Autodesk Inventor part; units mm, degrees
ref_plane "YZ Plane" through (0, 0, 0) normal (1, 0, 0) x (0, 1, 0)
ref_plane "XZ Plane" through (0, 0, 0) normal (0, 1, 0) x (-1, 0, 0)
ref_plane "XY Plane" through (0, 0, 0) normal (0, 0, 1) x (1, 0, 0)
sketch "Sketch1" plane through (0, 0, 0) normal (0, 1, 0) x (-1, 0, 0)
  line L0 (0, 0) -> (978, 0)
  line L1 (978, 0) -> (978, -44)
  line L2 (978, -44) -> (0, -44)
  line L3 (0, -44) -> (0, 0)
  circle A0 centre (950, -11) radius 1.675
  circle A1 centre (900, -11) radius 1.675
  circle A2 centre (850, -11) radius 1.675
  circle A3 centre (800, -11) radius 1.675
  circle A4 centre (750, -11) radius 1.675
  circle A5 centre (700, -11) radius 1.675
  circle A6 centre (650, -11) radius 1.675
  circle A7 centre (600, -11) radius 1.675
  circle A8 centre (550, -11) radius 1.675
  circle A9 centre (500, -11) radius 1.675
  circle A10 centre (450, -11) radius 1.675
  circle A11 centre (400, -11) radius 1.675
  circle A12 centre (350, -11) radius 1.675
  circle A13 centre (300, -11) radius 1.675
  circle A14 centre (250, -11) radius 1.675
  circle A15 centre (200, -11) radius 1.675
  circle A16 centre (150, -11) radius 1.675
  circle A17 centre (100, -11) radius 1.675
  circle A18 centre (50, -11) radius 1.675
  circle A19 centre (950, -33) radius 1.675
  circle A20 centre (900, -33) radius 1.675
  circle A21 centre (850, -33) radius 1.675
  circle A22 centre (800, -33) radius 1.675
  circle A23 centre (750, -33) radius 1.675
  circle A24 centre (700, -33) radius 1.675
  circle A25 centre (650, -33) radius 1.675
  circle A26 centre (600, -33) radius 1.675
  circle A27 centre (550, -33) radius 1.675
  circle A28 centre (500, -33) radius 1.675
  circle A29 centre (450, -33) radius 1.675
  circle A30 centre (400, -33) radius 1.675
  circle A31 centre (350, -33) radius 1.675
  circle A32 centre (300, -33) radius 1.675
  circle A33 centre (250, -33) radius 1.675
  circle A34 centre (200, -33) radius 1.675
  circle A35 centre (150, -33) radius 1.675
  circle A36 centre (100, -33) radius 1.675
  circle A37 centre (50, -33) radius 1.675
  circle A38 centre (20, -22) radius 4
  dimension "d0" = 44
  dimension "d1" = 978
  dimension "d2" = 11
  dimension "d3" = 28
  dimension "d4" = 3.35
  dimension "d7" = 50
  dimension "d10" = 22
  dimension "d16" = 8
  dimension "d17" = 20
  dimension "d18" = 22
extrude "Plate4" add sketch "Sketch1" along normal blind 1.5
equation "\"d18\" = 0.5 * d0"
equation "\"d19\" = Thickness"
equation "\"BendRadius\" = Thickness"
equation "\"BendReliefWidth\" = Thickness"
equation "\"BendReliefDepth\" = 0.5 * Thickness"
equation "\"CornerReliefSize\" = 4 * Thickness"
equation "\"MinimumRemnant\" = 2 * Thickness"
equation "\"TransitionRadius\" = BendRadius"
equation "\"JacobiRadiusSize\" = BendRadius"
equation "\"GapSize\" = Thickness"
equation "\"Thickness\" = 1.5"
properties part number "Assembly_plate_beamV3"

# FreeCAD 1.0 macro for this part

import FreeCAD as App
import Part
import Sketcher

V = App.Vector
Q = App.Units.Quantity

doc = App.newDocument("Part")
params = doc.addObject("Spreadsheet::Sheet", "Params")
for row, (alias, value) in enumerate([
    ("sketch1_diameter", "8 mm"),
    ("sketch1_diameter2", "3.35 mm"),
    ("sketch1_width", "978 mm"),
    ("sketch1_height", "44 mm"),
    ("pad1_length", "1.5 mm"),
], start=1):
    params.set(f"A{row}", alias)
    params.set(f"B{row}", "=" + value)
    params.setAlias(f"B{row}", alias)

body = doc.addObject("PartDesign::Body", "Body")

sketch1 = body.newObject("Sketcher::SketchObject", "Sketch")
sketch1.AttachmentSupport = (doc.getObject("XZ_Plane"), [""])
sketch1.MapMode = "FlatFace"
sketch1.addGeometry([
    Part.LineSegment(V(-978, 0, 0), V(0, 0, 0)),
    Part.LineSegment(V(0, 0, 0), V(0, -44, 0)),
    Part.LineSegment(V(0, -44, 0), V(-978, -44, 0)),
    Part.LineSegment(V(-978, -44, 0), V(-978, 0, 0)),
    Part.Circle(V(-50, -33, 0), V(0, 0, 1), 1.7),
    Part.Circle(V(-100, -33, 0), V(0, 0, 1), 1.7),
    Part.Circle(V(-150, -33, 0), V(0, 0, 1), 1.7),
    Part.Circle(V(-200, -33, 0), V(0, 0, 1), 1.7),
    Part.Circle(V(-250, -33, 0), V(0, 0, 1), 1.7),
    Part.Circle(V(-300, -33, 0), V(0, 0, 1), 1.7),
    Part.Circle(V(-350, -33, 0), V(0, 0, 1), 1.7),
    Part.Circle(V(-400, -33, 0), V(0, 0, 1), 1.7),
    Part.Circle(V(-450, -33, 0), V(0, 0, 1), 1.7),
    Part.Circle(V(-500, -33, 0), V(0, 0, 1), 1.7),
    Part.Circle(V(-550, -33, 0), V(0, 0, 1), 1.7),
    Part.Circle(V(-600, -33, 0), V(0, 0, 1), 1.7),
    Part.Circle(V(-650, -33, 0), V(0, 0, 1), 1.7),
    Part.Circle(V(-700, -33, 0), V(0, 0, 1), 1.7),
    Part.Circle(V(-750, -33, 0), V(0, 0, 1), 1.7),
    Part.Circle(V(-800, -33, 0), V(0, 0, 1), 1.7),
    Part.Circle(V(-850, -33, 0), V(0, 0, 1), 1.7),
    Part.Circle(V(-900, -33, 0), V(0, 0, 1), 1.7),
    Part.Circle(V(-950, -33, 0), V(0, 0, 1), 1.7),
    Part.Circle(V(-20, -22, 0), V(0, 0, 1), 4),
    Part.Circle(V(-50, -11, 0), V(0, 0, 1), 1.7),
    Part.Circle(V(-100, -11, 0), V(0, 0, 1), 1.7),
    Part.Circle(V(-150, -11, 0), V(0, 0, 1), 1.7),
    Part.Circle(V(-200, -11, 0), V(0, 0, 1), 1.7),
    Part.Circle(V(-250, -11, 0), V(0, 0, 1), 1.7),
    Part.Circle(V(-300, -11, 0), V(0, 0, 1), 1.7),
    Part.Circle(V(-350, -11, 0), V(0, 0, 1), 1.7),
    Part.Circle(V(-400, -11, 0), V(0, 0, 1), 1.7),
    Part.Circle(V(-450, -11, 0), V(0, 0, 1), 1.7),
    Part.Circle(V(-500, -11, 0), V(0, 0, 1), 1.7),
    Part.Circle(V(-550, -11, 0), V(0, 0, 1), 1.7),
    Part.Circle(V(-600, -11, 0), V(0, 0, 1), 1.7),
    Part.Circle(V(-650, -11, 0), V(0, 0, 1), 1.7),
    Part.Circle(V(-700, -11, 0), V(0, 0, 1), 1.7),
    Part.Circle(V(-750, -11, 0), V(0, 0, 1), 1.7),
    Part.Circle(V(-800, -11, 0), V(0, 0, 1), 1.7),
    Part.Circle(V(-850, -11, 0), V(0, 0, 1), 1.7),
    Part.Circle(V(-900, -11, 0), V(0, 0, 1), 1.7),
    Part.Circle(V(-950, -11, 0), V(0, 0, 1), 1.7),
], False)
sketch1.addConstraint([
    Sketcher.Constraint("Coincident", 0, 2, 1, 1),
    Sketcher.Constraint("Coincident", 1, 2, 2, 1),
    Sketcher.Constraint("Coincident", 2, 2, 3, 1),
    Sketcher.Constraint("Coincident", 3, 2, 0, 1),
    Sketcher.Constraint("Horizontal", 0),
    Sketcher.Constraint("Vertical", 1),
    Sketcher.Constraint("Horizontal", 2),
    Sketcher.Constraint("Vertical", 3),
    Sketcher.Constraint("Coincident", 0, 2, -1, 1),
    Sketcher.Constraint("Equal", 4, 5),
    Sketcher.Constraint("Equal", 5, 6),
    Sketcher.Constraint("Equal", 6, 7),
    Sketcher.Constraint("Equal", 7, 8),
    Sketcher.Constraint("Equal", 8, 9),
    Sketcher.Constraint("Equal", 9, 10),
    Sketcher.Constraint("Equal", 10, 11),
    Sketcher.Constraint("Equal", 11, 12),
    Sketcher.Constraint("Equal", 12, 13),
    Sketcher.Constraint("Equal", 13, 14),
    Sketcher.Constraint("Equal", 14, 15),
    Sketcher.Constraint("Equal", 15, 16),
    Sketcher.Constraint("Equal", 16, 17),
    Sketcher.Constraint("Equal", 17, 18),
    Sketcher.Constraint("Equal", 18, 19),
    Sketcher.Constraint("Equal", 19, 20),
    Sketcher.Constraint("Equal", 20, 21),
    Sketcher.Constraint("Equal", 21, 22),
    Sketcher.Constraint("Equal", 22, 24),
    Sketcher.Constraint("Equal", 24, 25),
    Sketcher.Constraint("Equal", 25, 26),
    Sketcher.Constraint("Equal", 26, 27),
    Sketcher.Constraint("Equal", 27, 28),
    Sketcher.Constraint("Equal", 28, 29),
    Sketcher.Constraint("Equal", 29, 30),
    Sketcher.Constraint("Equal", 30, 31),
    Sketcher.Constraint("Equal", 31, 32),
    Sketcher.Constraint("Equal", 32, 33),
    Sketcher.Constraint("Equal", 33, 34),
    Sketcher.Constraint("Equal", 34, 35),
    Sketcher.Constraint("Equal", 35, 36),
    Sketcher.Constraint("Equal", 36, 37),
    Sketcher.Constraint("Equal", 37, 38),
    Sketcher.Constraint("Equal", 38, 39),
    Sketcher.Constraint("Equal", 39, 40),
    Sketcher.Constraint("Equal", 40, 41),
    Sketcher.Constraint("Equal", 41, 42),
    Sketcher.Constraint("Horizontal", 4, 3, 5, 3),
    Sketcher.Constraint("Horizontal", 5, 3, 6, 3),
    Sketcher.Constraint("Horizontal", 6, 3, 7, 3),
    Sketcher.Constraint("Horizontal", 7, 3, 8, 3),
    Sketcher.Constraint("Horizontal", 8, 3, 9, 3),
    Sketcher.Constraint("Horizontal", 9, 3, 10, 3),
    Sketcher.Constraint("Horizontal", 10, 3, 11, 3),
    Sketcher.Constraint("Horizontal", 11, 3, 12, 3),
    Sketcher.Constraint("Horizontal", 12, 3, 13, 3),
    Sketcher.Constraint("Horizontal", 13, 3, 14, 3),
    Sketcher.Constraint("Horizontal", 14, 3, 15, 3),
    Sketcher.Constraint("Horizontal", 15, 3, 16, 3),
    Sketcher.Constraint("Horizontal", 16, 3, 17, 3),
    Sketcher.Constraint("Horizontal", 17, 3, 18, 3),
    Sketcher.Constraint("Horizontal", 18, 3, 19, 3),
    Sketcher.Constraint("Horizontal", 19, 3, 20, 3),
    Sketcher.Constraint("Horizontal", 20, 3, 21, 3),
    Sketcher.Constraint("Horizontal", 21, 3, 22, 3),
    Sketcher.Constraint("Horizontal", 24, 3, 25, 3),
    Sketcher.Constraint("Horizontal", 25, 3, 26, 3),
    Sketcher.Constraint("Horizontal", 26, 3, 27, 3),
    Sketcher.Constraint("Horizontal", 27, 3, 28, 3),
    Sketcher.Constraint("Horizontal", 28, 3, 29, 3),
    Sketcher.Constraint("Horizontal", 29, 3, 30, 3),
    Sketcher.Constraint("Horizontal", 30, 3, 31, 3),
    Sketcher.Constraint("Horizontal", 31, 3, 32, 3),
    Sketcher.Constraint("Horizontal", 32, 3, 33, 3),
    Sketcher.Constraint("Horizontal", 33, 3, 34, 3),
    Sketcher.Constraint("Horizontal", 34, 3, 35, 3),
    Sketcher.Constraint("Horizontal", 35, 3, 36, 3),
    Sketcher.Constraint("Horizontal", 36, 3, 37, 3),
    Sketcher.Constraint("Horizontal", 37, 3, 38, 3),
    Sketcher.Constraint("Horizontal", 38, 3, 39, 3),
    Sketcher.Constraint("Horizontal", 39, 3, 40, 3),
    Sketcher.Constraint("Horizontal", 40, 3, 41, 3),
    Sketcher.Constraint("Horizontal", 41, 3, 42, 3),
    Sketcher.Constraint("Vertical", 4, 3, 24, 3),
    Sketcher.Constraint("Vertical", 5, 3, 25, 3),
    Sketcher.Constraint("Vertical", 6, 3, 26, 3),
    Sketcher.Constraint("Vertical", 7, 3, 27, 3),
    Sketcher.Constraint("Vertical", 8, 3, 28, 3),
    Sketcher.Constraint("Vertical", 9, 3, 29, 3),
    Sketcher.Constraint("Vertical", 10, 3, 30, 3),
    Sketcher.Constraint("Vertical", 11, 3, 31, 3),
    Sketcher.Constraint("Vertical", 12, 3, 32, 3),
    Sketcher.Constraint("Vertical", 13, 3, 33, 3),
    Sketcher.Constraint("Vertical", 14, 3, 34, 3),
    Sketcher.Constraint("Vertical", 15, 3, 35, 3),
    Sketcher.Constraint("Vertical", 16, 3, 36, 3),
    Sketcher.Constraint("Vertical", 17, 3, 37, 3),
    Sketcher.Constraint("Vertical", 18, 3, 38, 3),
    Sketcher.Constraint("Vertical", 19, 3, 39, 3),
    Sketcher.Constraint("Vertical", 20, 3, 40, 3),
    Sketcher.Constraint("Vertical", 21, 3, 41, 3),
    Sketcher.Constraint("Vertical", 22, 3, 42, 3),
    Sketcher.Constraint("Diameter", 23, Q("8 mm")),
    Sketcher.Constraint("Diameter", 4, Q("3.35 mm")),
    Sketcher.Constraint("DistanceX", 0, 1, 0, 2, Q("978 mm")),
    Sketcher.Constraint("DistanceY", 1, 2, 1, 1, Q("44 mm")),
    Sketcher.Constraint("DistanceX", 4, 3, -1, 1, Q("50 mm")),
    Sketcher.Constraint("DistanceX", 23, 3, -1, 1, Q("20 mm")),
    Sketcher.Constraint("DistanceY", 23, 3, -1, 1, Q("22 mm")),
    Sketcher.Constraint("DistanceY", 24, 3, -1, 1, Q("11 mm")),
    Sketcher.Constraint("DistanceX", 5, 3, 4, 3, Q("50 mm")),
    Sketcher.Constraint("DistanceX", 6, 3, 5, 3, Q("50 mm")),
    Sketcher.Constraint("DistanceX", 7, 3, 6, 3, Q("50 mm")),
    Sketcher.Constraint("DistanceX", 8, 3, 7, 3, Q("50 mm")),
    Sketcher.Constraint("DistanceX", 9, 3, 8, 3, Q("50 mm")),
    Sketcher.Constraint("DistanceX", 10, 3, 9, 3, Q("50 mm")),
    Sketcher.Constraint("DistanceX", 11, 3, 10, 3, Q("50 mm")),
    Sketcher.Constraint("DistanceX", 12, 3, 11, 3, Q("50 mm")),
    Sketcher.Constraint("DistanceX", 13, 3, 12, 3, Q("50 mm")),
    Sketcher.Constraint("DistanceX", 14, 3, 13, 3, Q("50 mm")),
    Sketcher.Constraint("DistanceX", 15, 3, 14, 3, Q("50 mm")),
    Sketcher.Constraint("DistanceX", 16, 3, 15, 3, Q("50 mm")),
    Sketcher.Constraint("DistanceX", 17, 3, 16, 3, Q("50 mm")),
    Sketcher.Constraint("DistanceX", 18, 3, 17, 3, Q("50 mm")),
    Sketcher.Constraint("DistanceX", 19, 3, 18, 3, Q("50 mm")),
    Sketcher.Constraint("DistanceX", 20, 3, 19, 3, Q("50 mm")),
    Sketcher.Constraint("DistanceX", 21, 3, 20, 3, Q("50 mm")),
    Sketcher.Constraint("DistanceX", 22, 3, 21, 3, Q("50 mm")),
    Sketcher.Constraint("DistanceY", 4, 3, 23, 3, Q("11 mm")),
])
sketch1.setExpression("Constraints[101]", "Params.sketch1_diameter")
sketch1.setExpression("Constraints[102]", "Params.sketch1_diameter2")
sketch1.setExpression("Constraints[103]", "Params.sketch1_width")
sketch1.setExpression("Constraints[104]", "Params.sketch1_height")
pad1 = body.newObject("PartDesign::Pad", "Pad")
pad1.Profile = sketch1
pad1.setExpression("Length", "Params.pad1_length")
pad1.Reversed = True

doc.recompute()
